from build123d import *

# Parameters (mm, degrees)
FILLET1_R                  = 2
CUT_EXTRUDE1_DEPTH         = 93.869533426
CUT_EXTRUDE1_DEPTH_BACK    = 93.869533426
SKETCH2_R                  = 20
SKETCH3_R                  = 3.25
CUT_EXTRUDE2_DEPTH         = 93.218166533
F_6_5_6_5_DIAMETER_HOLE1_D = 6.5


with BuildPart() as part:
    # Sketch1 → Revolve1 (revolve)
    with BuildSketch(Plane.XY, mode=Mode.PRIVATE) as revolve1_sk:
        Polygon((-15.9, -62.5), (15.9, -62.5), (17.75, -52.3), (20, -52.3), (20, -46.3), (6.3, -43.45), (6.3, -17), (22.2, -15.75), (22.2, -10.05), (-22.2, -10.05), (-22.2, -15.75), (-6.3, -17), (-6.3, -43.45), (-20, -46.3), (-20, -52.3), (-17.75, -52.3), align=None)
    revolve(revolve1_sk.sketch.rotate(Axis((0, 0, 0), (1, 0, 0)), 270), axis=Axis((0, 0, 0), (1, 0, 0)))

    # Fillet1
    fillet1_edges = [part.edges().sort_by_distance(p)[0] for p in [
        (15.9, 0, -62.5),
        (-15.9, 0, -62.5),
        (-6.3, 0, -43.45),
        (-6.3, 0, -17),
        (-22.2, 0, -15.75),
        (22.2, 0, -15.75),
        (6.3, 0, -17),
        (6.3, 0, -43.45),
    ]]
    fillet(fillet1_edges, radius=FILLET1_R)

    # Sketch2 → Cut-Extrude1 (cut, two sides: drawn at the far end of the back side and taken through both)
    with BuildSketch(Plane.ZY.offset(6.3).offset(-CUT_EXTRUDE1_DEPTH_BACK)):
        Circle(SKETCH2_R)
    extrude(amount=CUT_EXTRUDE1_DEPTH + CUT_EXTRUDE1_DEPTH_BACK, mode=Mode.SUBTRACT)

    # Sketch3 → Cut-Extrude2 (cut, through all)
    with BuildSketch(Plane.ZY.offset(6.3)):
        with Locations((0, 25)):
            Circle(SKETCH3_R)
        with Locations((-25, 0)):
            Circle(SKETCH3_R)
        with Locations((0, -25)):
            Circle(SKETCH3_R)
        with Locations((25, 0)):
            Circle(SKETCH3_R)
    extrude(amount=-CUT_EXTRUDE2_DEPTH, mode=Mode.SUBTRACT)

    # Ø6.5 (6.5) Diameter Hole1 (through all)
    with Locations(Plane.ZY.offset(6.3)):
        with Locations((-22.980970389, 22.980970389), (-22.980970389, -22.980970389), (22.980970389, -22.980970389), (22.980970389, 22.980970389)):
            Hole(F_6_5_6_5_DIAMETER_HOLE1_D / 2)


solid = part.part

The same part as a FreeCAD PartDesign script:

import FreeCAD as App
import Part
import Sketcher
Q = App.Units.Quantity


def edges_at(feature, points):
    """Names of the edges that pass closest to the given points."""
    edges = feature.Shape.Edges
    near = lambda p: min(range(len(edges)), key=lambda i: edges[i].distToShape(Part.Vertex(*p))[0])
    return sorted({f"Edge{near(p) + 1}" for p in points})


def add_polygon(sketch, points):
    """Adds a closed chain of lines whose ends are joined by coincident constraints."""
    first, n = sketch.GeometryCount, len(points)
    for a, b in zip(points, points[1:] + points[:1]):
        sketch.addGeometry(Part.LineSegment(App.Vector(*a, 0), App.Vector(*b, 0)), False)
    for i in range(n):
        sketch.addConstraint(Sketcher.Constraint("Coincident", first + i, 2, first + (i + 1) % n, 1))

doc = App.newDocument("Part")
params = doc.addObject("Spreadsheet::Sheet", "Params")
for row, (alias, value) in enumerate([
    ("sketch1_height", "6 mm"),
    ("sketch1_width", "31.8 mm"),
    ("sketch1_width2", "44.4 mm"),
    ("sketch1_height2", "5.7 mm"),
    ("sketch1_width3", "2.25 mm"),
    ("revolution_angle", "360 deg"),
    ("fillet_radius", "2 mm"),
    ("sketch2_diameter", "40 mm"),
    ("sketch3_diameter", "6.5 mm"),
    ("sketch4_diameter", "6.5 mm"),
    ("hole_diameter", "6.5 mm"),
], start=1):
    params.set(f"A{row}", alias)
    params.set(f"B{row}", "=" + value)
    params.setAlias(f"B{row}", alias)

body = doc.addObject("PartDesign::Body", "Body")

# Sketch on XY plane
sketch1 = doc.addObject("Sketcher::SketchObject", "Sketch")
body.addObject(sketch1)
sketch1.AttachmentSupport = (doc.XY_Plane, [""])
sketch1.MapMode = "FlatFace"
add_polygon(sketch1, [(-15.9, -62.5), (15.9, -62.5), (17.8, -52.3), (20, -52.3), (20, -46.3), (6.3, -43.5), (6.3, -17), (22.2, -15.8), (22.2, -10.1), (-22.2, -10.1), (-22.2, -15.8), (-6.3, -17), (-6.3, -43.5), (-20, -46.3), (-20, -52.3), (-17.8, -52.3)])  # lines 0-15
sketch1.addConstraint(Sketcher.Constraint("Horizontal", 0))
sketch1.addConstraint(Sketcher.Constraint("Horizontal", 2))
sketch1.addConstraint(Sketcher.Constraint("Vertical", 3))
sketch1.addConstraint(Sketcher.Constraint("Vertical", 5))
sketch1.addConstraint(Sketcher.Constraint("Vertical", 7))
sketch1.addConstraint(Sketcher.Constraint("Horizontal", 8))
sketch1.addConstraint(Sketcher.Constraint("Vertical", 9))
sketch1.addConstraint(Sketcher.Constraint("Vertical", 11))
sketch1.addConstraint(Sketcher.Constraint("Vertical", 13))
sketch1.addConstraint(Sketcher.Constraint("Horizontal", 14))
sketch1.addConstraint(Sketcher.Constraint("Symmetric", 6, 2, 9, 2, -2))
sketch1.addConstraint(Sketcher.Constraint("Symmetric", 5, 2, 10, 2, -2))
sketch1.addConstraint(Sketcher.Constraint("Symmetric", 3, 2, 12, 2, -2))
sketch1.addConstraint(Sketcher.Constraint("Symmetric", 1, 2, 14, 2, -2))
sketch1.addConstraint(Sketcher.Constraint("Horizontal", 4, 2, 11, 2))
sketch1.addConstraint(Sketcher.Constraint("Equal", 1, 15))
sketch1.addConstraint(Sketcher.Constraint("DistanceY", 3, 1, 3, 2, Q("6 mm")))
sketch1.addConstraint(Sketcher.Constraint("DistanceX", 0, 1, 0, 2, Q("31.8 mm")))
sketch1.addConstraint(Sketcher.Constraint("DistanceX", 8, 2, 8, 1, Q("44.4 mm")))
sketch1.addConstraint(Sketcher.Constraint("DistanceY", 7, 1, 7, 2, Q("5.7 mm")))
sketch1.addConstraint(Sketcher.Constraint("DistanceX", -1, 1, 2, 2, Q("20 mm")))
sketch1.addConstraint(Sketcher.Constraint("DistanceY", 5, 2, -1, 1, Q("17 mm")))
sketch1.addConstraint(Sketcher.Constraint("DistanceX", 2, 1, 2, 2, Q("2.25 mm")))
sketch1.addConstraint(Sketcher.Constraint("DistanceY", 5, 1, 5, 2, Q("26.45 mm")))
sketch1.addConstraint(Sketcher.Constraint("DistanceY", 0, 2, -1, 1, Q("62.5 mm")))
sketch1.addConstraint(Sketcher.Constraint("DistanceY", 1, 2, -1, 1, Q("52.3 mm")))
sketch1.addConstraint(Sketcher.Constraint("DistanceX", -1, 1, 4, 2, Q("6.3 mm")))
sketch1.addConstraint(Sketcher.Constraint("DistanceY", 4, 2, 6, 2, Q("27.7 mm")))
sketch1.setExpression("Constraints[32]", "Params.sketch1_height")
sketch1.setExpression("Constraints[33]", "Params.sketch1_width")
sketch1.setExpression("Constraints[34]", "Params.sketch1_width2")
sketch1.setExpression("Constraints[35]", "Params.sketch1_height2")
sketch1.setExpression("Constraints[38]", "Params.sketch1_width3")
revolution = doc.addObject("PartDesign::Revolution", "Revolution")
body.addObject(revolution)
revolution.Profile = sketch1
revolution.ReferenceAxis = (sketch1, ["H_Axis"])
revolution.setExpression("Angle", "Params.revolution_angle")
doc.recompute()

fillet = doc.addObject("PartDesign::Fillet", "Fillet")
body.addObject(fillet)
fillet.Base = (revolution, edges_at(revolution, [
    (15.9, 0, -62.5),
    (-15.9, 0, -62.5),
    (-6.3, 0, -43.45),
    (-6.3, 0, -17),
    (-22.2, 0, -15.75),
    (22.2, 0, -15.75),
    (6.3, 0, -17),
    (6.3, 0, -43.45),
]))
fillet.setExpression("Radius", "Params.fillet_radius")

# Sketch on YZ plane
sketch2 = doc.addObject("Sketcher::SketchObject", "Sketch001")
body.addObject(sketch2)
sketch2.AttachmentSupport = (doc.YZ_Plane, [""])
sketch2.MapMode = "FlatFace"
sketch2.AttachmentOffset = App.Placement(App.Vector(0, 0, -6.3), App.Rotation())
sketch2.addGeometry(Part.Circle(App.Vector(0, 0, 0), App.Vector(0, 0, 1), 20), False)
sketch2.addConstraint(Sketcher.Constraint("Coincident", 0, 3, -1, 1))
sketch2.addConstraint(Sketcher.Constraint("Diameter", 0, Q("40 mm")))
sketch2.setExpression("Constraints[1]", "Params.sketch2_diameter")
pocket1 = doc.addObject("PartDesign::Pocket", "Pocket")
body.addObject(pocket1)
pocket1.Profile = sketch2
pocket1.Type = "ThroughAll"
pocket1.Midplane = True

# Sketch on YZ plane
sketch3 = doc.addObject("Sketcher::SketchObject", "Sketch002")
body.addObject(sketch3)
sketch3.AttachmentSupport = (doc.YZ_Plane, [""])
sketch3.MapMode = "FlatFace"
sketch3.AttachmentOffset = App.Placement(App.Vector(0, 0, -6.3), App.Rotation())
sketch3.addGeometry(Part.Circle(App.Vector(25, 0, 0), App.Vector(0, 0, 1), 3.2), False)
sketch3.addGeometry(Part.Circle(App.Vector(0, -25, 0), App.Vector(0, 0, 1), 3.2), False)
sketch3.addGeometry(Part.Circle(App.Vector(-25, 0, 0), App.Vector(0, 0, 1), 3.2), False)
sketch3.addGeometry(Part.Circle(App.Vector(0, 25, 0), App.Vector(0, 0, 1), 3.2), False)
sketch3.addConstraint(Sketcher.Constraint("Equal", 0, 1))
sketch3.addConstraint(Sketcher.Constraint("Equal", 1, 2))
sketch3.addConstraint(Sketcher.Constraint("Equal", 2, 3))
sketch3.addConstraint(Sketcher.Constraint("Symmetric", 0, 3, 2, 3, -1, 1))
sketch3.addConstraint(Sketcher.Constraint("Symmetric", 1, 3, 3, 3, -1, 1))
sketch3.addConstraint(Sketcher.Constraint("PointOnObject", 0, 3, -1))
sketch3.addConstraint(Sketcher.Constraint("PointOnObject", 1, 3, -2))
sketch3.addConstraint(Sketcher.Constraint("Diameter", 0, Q("6.5 mm")))
sketch3.addConstraint(Sketcher.Constraint("DistanceX", -1, 1, 0, 3, Q("25 mm")))
sketch3.addConstraint(Sketcher.Constraint("DistanceY", 1, 3, -1, 1, Q("25 mm")))
sketch3.setExpression("Constraints[7]", "Params.sketch3_diameter")
pocket2 = doc.addObject("PartDesign::Pocket", "Pocket001")
body.addObject(pocket2)
pocket2.Profile = sketch3
pocket2.Type = "ThroughAll"
pocket2.Reversed = True

# Sketch on YZ plane
sketch4 = doc.addObject("Sketcher::SketchObject", "Sketch003")
body.addObject(sketch4)
sketch4.AttachmentSupport = (doc.YZ_Plane, [""])
sketch4.MapMode = "FlatFace"
sketch4.AttachmentOffset = App.Placement(App.Vector(0, 0, -6.3), App.Rotation())
sketch4.addGeometry(Part.Circle(App.Vector(23, -23, 0), App.Vector(0, 0, 1), 3.2), False)
sketch4.addGeometry(Part.Circle(App.Vector(-23, -23, 0), App.Vector(0, 0, 1), 3.2), False)
sketch4.addGeometry(Part.Circle(App.Vector(-23, 23, 0), App.Vector(0, 0, 1), 3.2), False)
sketch4.addGeometry(Part.Circle(App.Vector(23, 23, 0), App.Vector(0, 0, 1), 3.2), False)
sketch4.addConstraint(Sketcher.Constraint("Equal", 0, 1))
sketch4.addConstraint(Sketcher.Constraint("Equal", 1, 2))
sketch4.addConstraint(Sketcher.Constraint("Equal", 2, 3))
sketch4.addConstraint(Sketcher.Constraint("Symmetric", 0, 3, 2, 3, -1, 1))
sketch4.addConstraint(Sketcher.Constraint("Symmetric", 1, 3, 3, 3, -1, 1))
sketch4.addConstraint(Sketcher.Constraint("Symmetric", 0, 3, 1, 3, -2))
sketch4.addConstraint(Sketcher.Constraint("Diameter", 0, Q("6.5 mm")))
sketch4.addConstraint(Sketcher.Constraint("DistanceX", -1, 1, 0, 3, Q("22.98097 mm")))
sketch4.addConstraint(Sketcher.Constraint("DistanceY", 0, 3, -1, 1, Q("22.98097 mm")))
sketch4.setExpression("Constraints[6]", "Params.sketch4_diameter")
doc.recompute()
hole = doc.addObject("PartDesign::Hole", "Hole")
body.addObject(hole)
hole.Profile = sketch4
hole.ThreadType = "None"
hole.setExpression("Diameter", "Params.hole_diameter")
hole.DepthType = "ThroughAll"
hole.Reversed = True

doc.recompute()
